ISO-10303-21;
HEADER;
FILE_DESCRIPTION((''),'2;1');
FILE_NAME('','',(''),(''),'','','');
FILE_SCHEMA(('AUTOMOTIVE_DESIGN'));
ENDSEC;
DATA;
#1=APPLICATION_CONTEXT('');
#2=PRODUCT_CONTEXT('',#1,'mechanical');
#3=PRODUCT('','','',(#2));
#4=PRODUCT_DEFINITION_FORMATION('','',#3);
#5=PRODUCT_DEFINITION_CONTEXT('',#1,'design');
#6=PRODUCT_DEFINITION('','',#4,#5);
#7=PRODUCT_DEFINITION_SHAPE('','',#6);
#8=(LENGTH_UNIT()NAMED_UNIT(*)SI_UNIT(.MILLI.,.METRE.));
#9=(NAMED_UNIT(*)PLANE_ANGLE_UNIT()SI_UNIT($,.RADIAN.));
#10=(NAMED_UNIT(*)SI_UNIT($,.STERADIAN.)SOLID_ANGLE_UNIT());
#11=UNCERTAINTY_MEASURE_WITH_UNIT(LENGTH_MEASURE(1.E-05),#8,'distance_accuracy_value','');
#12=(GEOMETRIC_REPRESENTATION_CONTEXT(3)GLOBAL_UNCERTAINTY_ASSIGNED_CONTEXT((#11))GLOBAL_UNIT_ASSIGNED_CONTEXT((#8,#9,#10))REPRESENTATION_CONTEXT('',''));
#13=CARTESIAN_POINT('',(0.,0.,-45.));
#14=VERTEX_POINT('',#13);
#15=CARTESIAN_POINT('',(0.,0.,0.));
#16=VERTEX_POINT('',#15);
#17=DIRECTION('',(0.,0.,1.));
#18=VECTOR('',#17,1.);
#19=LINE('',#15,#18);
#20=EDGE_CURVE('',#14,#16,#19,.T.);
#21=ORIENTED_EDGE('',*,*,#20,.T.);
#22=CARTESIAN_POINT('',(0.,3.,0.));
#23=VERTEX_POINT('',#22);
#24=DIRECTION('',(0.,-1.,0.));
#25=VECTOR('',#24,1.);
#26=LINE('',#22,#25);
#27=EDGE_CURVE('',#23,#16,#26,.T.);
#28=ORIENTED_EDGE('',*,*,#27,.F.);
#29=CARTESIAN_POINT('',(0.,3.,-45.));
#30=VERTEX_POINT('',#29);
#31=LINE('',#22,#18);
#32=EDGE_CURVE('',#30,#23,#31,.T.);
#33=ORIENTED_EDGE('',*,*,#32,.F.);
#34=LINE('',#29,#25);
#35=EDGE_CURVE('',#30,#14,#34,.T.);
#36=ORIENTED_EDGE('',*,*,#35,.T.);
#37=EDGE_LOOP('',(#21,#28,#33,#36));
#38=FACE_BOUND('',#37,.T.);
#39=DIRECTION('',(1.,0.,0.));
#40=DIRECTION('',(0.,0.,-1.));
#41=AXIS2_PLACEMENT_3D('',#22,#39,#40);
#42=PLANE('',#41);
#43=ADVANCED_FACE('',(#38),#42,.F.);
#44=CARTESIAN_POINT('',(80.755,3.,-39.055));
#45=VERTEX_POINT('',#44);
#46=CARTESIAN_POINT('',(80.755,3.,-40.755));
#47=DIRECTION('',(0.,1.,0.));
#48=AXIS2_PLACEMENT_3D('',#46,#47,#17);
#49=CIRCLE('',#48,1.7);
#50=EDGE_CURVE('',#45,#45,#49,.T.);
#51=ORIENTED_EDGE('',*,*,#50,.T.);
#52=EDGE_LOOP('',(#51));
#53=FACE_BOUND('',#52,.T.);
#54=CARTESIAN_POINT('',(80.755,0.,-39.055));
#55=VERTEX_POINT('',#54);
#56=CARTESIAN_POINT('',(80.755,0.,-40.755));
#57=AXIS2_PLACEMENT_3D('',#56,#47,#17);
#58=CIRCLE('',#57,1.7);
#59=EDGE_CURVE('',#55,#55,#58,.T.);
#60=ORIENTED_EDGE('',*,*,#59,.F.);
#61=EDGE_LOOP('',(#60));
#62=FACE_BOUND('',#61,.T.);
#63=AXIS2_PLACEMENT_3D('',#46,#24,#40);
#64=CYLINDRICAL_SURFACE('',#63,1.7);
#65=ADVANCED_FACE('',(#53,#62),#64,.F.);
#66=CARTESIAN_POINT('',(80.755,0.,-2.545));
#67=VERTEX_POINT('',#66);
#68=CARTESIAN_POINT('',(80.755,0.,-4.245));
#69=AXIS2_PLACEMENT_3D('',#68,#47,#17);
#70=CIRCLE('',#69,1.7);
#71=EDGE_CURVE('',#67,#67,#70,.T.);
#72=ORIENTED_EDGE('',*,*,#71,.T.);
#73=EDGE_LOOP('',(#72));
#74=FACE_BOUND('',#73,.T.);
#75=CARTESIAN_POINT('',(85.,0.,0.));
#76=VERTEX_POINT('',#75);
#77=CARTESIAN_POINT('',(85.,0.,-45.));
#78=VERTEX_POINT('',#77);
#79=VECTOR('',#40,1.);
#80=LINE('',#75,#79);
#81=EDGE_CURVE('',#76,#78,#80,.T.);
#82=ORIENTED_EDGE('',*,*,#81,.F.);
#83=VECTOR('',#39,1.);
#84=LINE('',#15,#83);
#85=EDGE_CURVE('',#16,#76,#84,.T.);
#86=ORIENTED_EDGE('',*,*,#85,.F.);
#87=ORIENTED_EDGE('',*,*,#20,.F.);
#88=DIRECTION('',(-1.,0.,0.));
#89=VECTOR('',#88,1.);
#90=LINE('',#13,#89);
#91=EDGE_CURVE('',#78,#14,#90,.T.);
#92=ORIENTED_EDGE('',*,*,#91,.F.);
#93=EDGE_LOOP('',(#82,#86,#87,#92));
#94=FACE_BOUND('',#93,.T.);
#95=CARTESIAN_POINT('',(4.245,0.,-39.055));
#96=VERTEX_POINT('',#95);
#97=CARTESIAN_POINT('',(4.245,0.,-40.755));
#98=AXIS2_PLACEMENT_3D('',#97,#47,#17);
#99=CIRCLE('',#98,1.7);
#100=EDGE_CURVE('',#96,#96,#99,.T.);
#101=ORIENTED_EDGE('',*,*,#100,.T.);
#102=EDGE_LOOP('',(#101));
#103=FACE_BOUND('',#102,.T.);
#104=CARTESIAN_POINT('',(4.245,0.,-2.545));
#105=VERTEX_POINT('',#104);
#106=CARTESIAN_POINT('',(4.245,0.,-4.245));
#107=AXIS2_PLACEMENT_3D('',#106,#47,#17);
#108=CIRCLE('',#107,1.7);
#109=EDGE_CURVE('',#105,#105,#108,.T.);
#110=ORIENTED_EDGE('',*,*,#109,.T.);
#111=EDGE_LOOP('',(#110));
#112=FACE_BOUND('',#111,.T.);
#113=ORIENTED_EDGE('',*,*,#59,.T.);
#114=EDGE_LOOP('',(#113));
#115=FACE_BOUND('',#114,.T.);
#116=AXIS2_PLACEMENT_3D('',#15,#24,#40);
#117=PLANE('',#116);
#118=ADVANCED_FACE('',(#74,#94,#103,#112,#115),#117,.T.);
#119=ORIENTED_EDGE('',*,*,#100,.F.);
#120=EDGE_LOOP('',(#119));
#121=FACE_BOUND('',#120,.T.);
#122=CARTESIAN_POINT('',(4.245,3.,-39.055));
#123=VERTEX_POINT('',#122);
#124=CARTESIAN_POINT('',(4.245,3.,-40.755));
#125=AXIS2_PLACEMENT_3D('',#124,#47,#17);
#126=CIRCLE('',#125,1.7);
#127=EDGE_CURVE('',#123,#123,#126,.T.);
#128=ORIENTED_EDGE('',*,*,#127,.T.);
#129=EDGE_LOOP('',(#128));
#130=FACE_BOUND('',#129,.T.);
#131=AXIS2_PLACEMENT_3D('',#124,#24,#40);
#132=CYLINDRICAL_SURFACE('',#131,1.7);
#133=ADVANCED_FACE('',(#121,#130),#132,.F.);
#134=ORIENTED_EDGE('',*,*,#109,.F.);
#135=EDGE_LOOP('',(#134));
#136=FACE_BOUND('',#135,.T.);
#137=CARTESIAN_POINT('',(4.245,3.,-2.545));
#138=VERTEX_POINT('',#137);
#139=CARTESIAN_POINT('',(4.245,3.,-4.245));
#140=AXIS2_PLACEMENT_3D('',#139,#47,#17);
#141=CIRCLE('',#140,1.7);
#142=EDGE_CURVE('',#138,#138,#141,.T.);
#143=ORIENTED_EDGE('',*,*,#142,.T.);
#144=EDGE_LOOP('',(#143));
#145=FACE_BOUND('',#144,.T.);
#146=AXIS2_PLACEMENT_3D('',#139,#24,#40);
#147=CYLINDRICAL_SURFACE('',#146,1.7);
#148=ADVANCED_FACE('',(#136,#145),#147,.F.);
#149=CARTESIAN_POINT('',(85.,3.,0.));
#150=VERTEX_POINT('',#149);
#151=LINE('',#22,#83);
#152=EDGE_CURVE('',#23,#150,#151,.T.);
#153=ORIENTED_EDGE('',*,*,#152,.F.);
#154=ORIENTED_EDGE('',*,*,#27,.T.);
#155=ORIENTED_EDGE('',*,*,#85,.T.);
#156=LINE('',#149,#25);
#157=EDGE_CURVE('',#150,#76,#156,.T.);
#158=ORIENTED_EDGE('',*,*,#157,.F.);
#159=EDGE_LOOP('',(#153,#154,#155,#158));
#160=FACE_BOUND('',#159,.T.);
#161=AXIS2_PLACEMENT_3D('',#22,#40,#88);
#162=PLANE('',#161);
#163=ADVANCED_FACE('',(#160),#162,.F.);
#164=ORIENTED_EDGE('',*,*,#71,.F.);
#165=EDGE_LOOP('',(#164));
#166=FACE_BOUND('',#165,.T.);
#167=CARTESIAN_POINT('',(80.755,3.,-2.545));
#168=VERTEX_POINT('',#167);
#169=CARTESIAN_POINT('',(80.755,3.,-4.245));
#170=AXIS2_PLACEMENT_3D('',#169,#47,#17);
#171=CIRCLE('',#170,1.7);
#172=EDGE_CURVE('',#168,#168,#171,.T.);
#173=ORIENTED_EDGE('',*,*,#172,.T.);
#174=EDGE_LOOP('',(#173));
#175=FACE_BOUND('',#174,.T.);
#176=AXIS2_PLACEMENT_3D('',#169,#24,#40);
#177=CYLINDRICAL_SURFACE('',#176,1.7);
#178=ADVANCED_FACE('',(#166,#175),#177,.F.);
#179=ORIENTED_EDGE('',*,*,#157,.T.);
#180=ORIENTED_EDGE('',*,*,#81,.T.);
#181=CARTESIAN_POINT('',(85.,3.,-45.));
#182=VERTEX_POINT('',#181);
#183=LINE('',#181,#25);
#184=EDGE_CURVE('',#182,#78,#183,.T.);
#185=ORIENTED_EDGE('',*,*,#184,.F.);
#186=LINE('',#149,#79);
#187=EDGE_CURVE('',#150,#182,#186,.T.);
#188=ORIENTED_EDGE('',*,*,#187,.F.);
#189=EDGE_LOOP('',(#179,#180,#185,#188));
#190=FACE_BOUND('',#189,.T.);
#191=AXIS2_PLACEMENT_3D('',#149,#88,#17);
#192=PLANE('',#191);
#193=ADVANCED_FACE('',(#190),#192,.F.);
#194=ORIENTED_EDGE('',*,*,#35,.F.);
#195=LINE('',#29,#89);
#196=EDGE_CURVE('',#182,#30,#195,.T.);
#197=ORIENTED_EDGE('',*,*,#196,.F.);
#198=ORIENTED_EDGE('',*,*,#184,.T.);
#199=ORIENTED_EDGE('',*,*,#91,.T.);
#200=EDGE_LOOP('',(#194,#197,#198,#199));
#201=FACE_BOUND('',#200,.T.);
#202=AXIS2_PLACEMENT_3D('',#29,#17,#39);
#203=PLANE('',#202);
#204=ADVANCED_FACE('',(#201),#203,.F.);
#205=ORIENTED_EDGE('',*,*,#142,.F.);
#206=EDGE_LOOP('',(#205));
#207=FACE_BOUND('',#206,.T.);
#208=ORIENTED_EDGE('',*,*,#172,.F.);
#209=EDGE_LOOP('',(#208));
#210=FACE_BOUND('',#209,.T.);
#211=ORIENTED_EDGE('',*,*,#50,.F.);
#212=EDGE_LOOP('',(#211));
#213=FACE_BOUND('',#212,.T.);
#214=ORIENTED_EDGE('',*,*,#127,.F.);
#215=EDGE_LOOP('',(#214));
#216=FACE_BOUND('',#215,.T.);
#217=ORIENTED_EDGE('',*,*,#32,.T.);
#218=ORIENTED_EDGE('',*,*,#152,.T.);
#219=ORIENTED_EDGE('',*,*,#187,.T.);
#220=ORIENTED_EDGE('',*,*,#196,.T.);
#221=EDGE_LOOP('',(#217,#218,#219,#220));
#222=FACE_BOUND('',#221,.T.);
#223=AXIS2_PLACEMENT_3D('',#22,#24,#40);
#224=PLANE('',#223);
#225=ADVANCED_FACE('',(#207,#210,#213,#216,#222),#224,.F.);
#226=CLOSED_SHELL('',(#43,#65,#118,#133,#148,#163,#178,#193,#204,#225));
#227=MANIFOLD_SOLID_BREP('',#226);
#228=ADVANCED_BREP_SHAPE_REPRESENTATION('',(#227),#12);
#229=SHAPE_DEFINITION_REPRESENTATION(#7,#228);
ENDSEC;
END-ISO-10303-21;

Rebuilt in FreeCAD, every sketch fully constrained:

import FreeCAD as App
import Part
import Sketcher
from FreeCAD import Vector
Q = App.Units.Quantity

doc = App.newDocument("Part")
body = doc.addObject("PartDesign::Body", "Body")

sketch1 = body.newObject("Sketcher::SketchObject", "Sketch")
sketch1.AttachmentSupport = (doc.getObject("XZ_Plane"), [""])
sketch1.MapMode = "FlatFace"
sketch1.addGeometry([
    Part.LineSegment(Vector(0, -45, 0), Vector(0, 0, 0)),
    Part.LineSegment(Vector(0, 0, 0), Vector(85, 0, 0)),
    Part.LineSegment(Vector(85, 0, 0), Vector(85, -45, 0)),
    Part.LineSegment(Vector(85, -45, 0), Vector(0, -45, 0)),
    Part.Circle(Vector(4.245, -4.245, 0), Vector(0, 0, 1), 1.7),
    Part.Circle(Vector(80.755, -4.245, 0), Vector(0, 0, 1), 1.7),
    Part.Circle(Vector(4.245, -40.755, 0), Vector(0, 0, 1), 1.7),
    Part.Circle(Vector(80.755, -40.755, 0), Vector(0, 0, 1), 1.7),
], False)
sketch1.addConstraint([
    Sketcher.Constraint("Coincident", 0, 2, 1, 1),
    Sketcher.Constraint("Coincident", 1, 2, 2, 1),
    Sketcher.Constraint("Coincident", 2, 2, 3, 1),
    Sketcher.Constraint("Coincident", 3, 2, 0, 1),
    Sketcher.Constraint("Vertical", 0),
    Sketcher.Constraint("Horizontal", 1),
    Sketcher.Constraint("Vertical", 2),
    Sketcher.Constraint("Horizontal", 3),
    Sketcher.Constraint("Coincident", 0, 2, -1, 1),
    Sketcher.Constraint("Equal", 4, 5),
    Sketcher.Constraint("Equal", 5, 6),
    Sketcher.Constraint("Equal", 6, 7),
    Sketcher.Constraint("Horizontal", 4, 3, 5, 3),
    Sketcher.Constraint("Horizontal", 6, 3, 7, 3),
    Sketcher.Constraint("Vertical", 4, 3, 6, 3),
    Sketcher.Constraint("Vertical", 5, 3, 7, 3),
    Sketcher.Constraint("Diameter", 4, Q("3.4 mm")),
    Sketcher.Constraint("DistanceX", 1, 1, 1, 2, Q("85 mm")),
    Sketcher.Constraint("DistanceY", 0, 1, 0, 2, Q("45 mm")),
    Sketcher.Constraint("DistanceX", 4, 3, 5, 3, Q("76.51 mm")),
    Sketcher.Constraint("DistanceY", 6, 3, 4, 3, Q("36.51 mm")),
    Sketcher.Constraint("DistanceX", -1, 1, 4, 3, Q("4.245 mm")),
    Sketcher.Constraint("DistanceY", 4, 3, -1, 1, Q("4.245 mm")),
])
pad1 = body.newObject("PartDesign::Pad", "Pad")
pad1.Profile = sketch1
pad1.Length = 3
pad1.Reversed = True

doc.recompute()
